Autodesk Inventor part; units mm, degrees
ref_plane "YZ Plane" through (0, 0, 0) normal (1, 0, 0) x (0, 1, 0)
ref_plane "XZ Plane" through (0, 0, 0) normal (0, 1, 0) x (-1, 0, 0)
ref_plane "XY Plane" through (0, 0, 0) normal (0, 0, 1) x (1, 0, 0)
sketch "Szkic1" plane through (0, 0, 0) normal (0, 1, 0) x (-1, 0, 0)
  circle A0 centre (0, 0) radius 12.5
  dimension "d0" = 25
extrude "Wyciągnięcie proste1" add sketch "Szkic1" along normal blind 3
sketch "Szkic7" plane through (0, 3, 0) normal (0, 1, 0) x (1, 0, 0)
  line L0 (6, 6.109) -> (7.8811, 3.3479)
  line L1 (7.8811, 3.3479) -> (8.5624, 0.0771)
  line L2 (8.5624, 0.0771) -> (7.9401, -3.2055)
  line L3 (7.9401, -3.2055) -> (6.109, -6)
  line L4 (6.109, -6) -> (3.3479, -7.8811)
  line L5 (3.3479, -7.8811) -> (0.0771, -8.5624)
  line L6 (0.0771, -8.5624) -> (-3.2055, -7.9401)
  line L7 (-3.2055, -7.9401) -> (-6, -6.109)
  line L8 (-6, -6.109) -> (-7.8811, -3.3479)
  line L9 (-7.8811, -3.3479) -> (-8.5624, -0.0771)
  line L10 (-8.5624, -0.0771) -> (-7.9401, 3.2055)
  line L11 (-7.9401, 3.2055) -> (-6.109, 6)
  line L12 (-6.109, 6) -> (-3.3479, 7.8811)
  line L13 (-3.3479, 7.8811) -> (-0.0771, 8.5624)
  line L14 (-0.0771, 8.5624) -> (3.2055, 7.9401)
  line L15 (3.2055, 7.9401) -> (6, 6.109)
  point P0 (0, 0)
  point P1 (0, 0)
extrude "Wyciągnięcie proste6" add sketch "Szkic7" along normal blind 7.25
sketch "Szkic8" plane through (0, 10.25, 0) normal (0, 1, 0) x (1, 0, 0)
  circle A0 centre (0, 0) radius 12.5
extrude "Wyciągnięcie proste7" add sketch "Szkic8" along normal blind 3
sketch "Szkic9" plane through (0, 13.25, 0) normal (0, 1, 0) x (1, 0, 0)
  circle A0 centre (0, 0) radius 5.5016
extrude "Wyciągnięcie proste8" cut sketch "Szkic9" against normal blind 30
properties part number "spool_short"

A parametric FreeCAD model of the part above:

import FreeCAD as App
import Part
import Sketcher

V = App.Vector

doc = App.newDocument("Part")
body = doc.addObject("PartDesign::Body", "Body")

# Sketch on XZ plane
sketch1 = body.newObject("Sketcher::SketchObject", "Sketch")
sketch1.AttachmentSupport = (doc.getObject("XZ_Plane"), [""])
sketch1.MapMode = "FlatFace"
sketch1.addGeometry(Part.Circle(V(0, 0, 0), V(0, 0, 1), 12.5), False)
sketch1.addConstraint(Sketcher.Constraint("Coincident", 0, 3, -1, 1))
sketch1.addConstraint(Sketcher.Constraint("Diameter", 0, 25.0))
pad1 = body.newObject("PartDesign::Pad", "Pad")
pad1.Profile = sketch1
pad1.Length = 3
pad1.Reversed = True

# Sketch on XZ plane
sketch2 = body.newObject("Sketcher::SketchObject", "Sketch001")
sketch2.AttachmentSupport = (doc.getObject("XZ_Plane"), [""])
sketch2.MapMode = "FlatFace"
sketch2.AttachmentOffset = App.Placement(V(0, 0, -3), App.Rotation())
sketch2.addGeometry(Part.LineSegment(V(7.8811, -3.3479, 0), V(6, -6.109, 0)), False)
sketch2.addGeometry(Part.LineSegment(V(6, -6.109, 0), V(3.2055, -7.9401, 0)), False)
sketch2.addGeometry(Part.LineSegment(V(3.2055, -7.9401, 0), V(-0.0771, -8.5624, 0)), False)
sketch2.addGeometry(Part.LineSegment(V(-0.0771, -8.5624, 0), V(-3.3479, -7.8811, 0)), False)
sketch2.addGeometry(Part.LineSegment(V(-3.3479, -7.8811, 0), V(-6.109, -6, 0)), False)
sketch2.addGeometry(Part.LineSegment(V(-6.109, -6, 0), V(-7.9401, -3.2055, 0)), False)
sketch2.addGeometry(Part.LineSegment(V(-7.9401, -3.2055, 0), V(-8.5624, 0.0771, 0)), False)
sketch2.addGeometry(Part.LineSegment(V(-8.5624, 0.0771, 0), V(-7.8811, 3.3479, 0)), False)
sketch2.addGeometry(Part.LineSegment(V(-7.8811, 3.3479, 0), V(-6, 6.109, 0)), False)
sketch2.addGeometry(Part.LineSegment(V(-6, 6.109, 0), V(-3.2055, 7.9401, 0)), False)
sketch2.addGeometry(Part.LineSegment(V(-3.2055, 7.9401, 0), V(0.0771, 8.5624, 0)), False)
sketch2.addGeometry(Part.LineSegment(V(0.0771, 8.5624, 0), V(3.3479, 7.8811, 0)), False)
sketch2.addGeometry(Part.LineSegment(V(3.3479, 7.8811, 0), V(6.109, 6, 0)), False)
sketch2.addGeometry(Part.LineSegment(V(6.109, 6, 0), V(7.9401, 3.2055, 0)), False)
sketch2.addGeometry(Part.LineSegment(V(7.9401, 3.2055, 0), V(8.5624, -0.0771, 0)), False)
sketch2.addGeometry(Part.LineSegment(V(8.5624, -0.0771, 0), V(7.8811, -3.3479, 0)), False)
sketch2.addConstraint(Sketcher.Constraint("Coincident", 0, 2, 1, 1))
sketch2.addConstraint(Sketcher.Constraint("Coincident", 1, 2, 2, 1))
sketch2.addConstraint(Sketcher.Constraint("Coincident", 2, 2, 3, 1))
sketch2.addConstraint(Sketcher.Constraint("Coincident", 3, 2, 4, 1))
sketch2.addConstraint(Sketcher.Constraint("Coincident", 4, 2, 5, 1))
sketch2.addConstraint(Sketcher.Constraint("Coincident", 5, 2, 6, 1))
sketch2.addConstraint(Sketcher.Constraint("Coincident", 6, 2, 7, 1))
sketch2.addConstraint(Sketcher.Constraint("Coincident", 7, 2, 8, 1))
sketch2.addConstraint(Sketcher.Constraint("Coincident", 8, 2, 9, 1))
sketch2.addConstraint(Sketcher.Constraint("Coincident", 9, 2, 10, 1))
sketch2.addConstraint(Sketcher.Constraint("Coincident", 10, 2, 11, 1))
sketch2.addConstraint(Sketcher.Constraint("Coincident", 11, 2, 12, 1))
sketch2.addConstraint(Sketcher.Constraint("Coincident", 12, 2, 13, 1))
sketch2.addConstraint(Sketcher.Constraint("Coincident", 13, 2, 14, 1))
sketch2.addConstraint(Sketcher.Constraint("Coincident", 14, 2, 15, 1))
sketch2.addConstraint(Sketcher.Constraint("Coincident", 15, 2, 0, 1))
sketch2.addConstraint(Sketcher.Constraint("Symmetric", 0, 2, 8, 2, -1, 1))
sketch2.addConstraint(Sketcher.Constraint("Symmetric", 1, 2, 9, 2, -1, 1))
sketch2.addConstraint(Sketcher.Constraint("Symmetric", 2, 2, 10, 2, -1, 1))
sketch2.addConstraint(Sketcher.Constraint("Symmetric", 3, 2, 11, 2, -1, 1))
sketch2.addConstraint(Sketcher.Constraint("Symmetric", 4, 2, 12, 2, -1, 1))
sketch2.addConstraint(Sketcher.Constraint("Symmetric", 5, 2, 13, 2, -1, 1))
sketch2.addConstraint(Sketcher.Constraint("Symmetric", 6, 2, 14, 2, -1, 1))
sketch2.addConstraint(Sketcher.Constraint("Symmetric", 7, 2, 15, 2, -1, 1))
sketch2.addConstraint(Sketcher.Constraint("Perpendicular", 0, 4))
sketch2.addConstraint(Sketcher.Constraint("Perpendicular", 1, 5))
sketch2.addConstraint(Sketcher.Constraint("Perpendicular", 2, 6))
sketch2.addConstraint(Sketcher.Constraint("Perpendicular", 3, 7))
sketch2.addConstraint(Sketcher.Constraint("Equal", 0, 1))
sketch2.addConstraint(Sketcher.Constraint("Equal", 1, 2))
sketch2.addConstraint(Sketcher.Constraint("Equal", 2, 3))
sketch2.addConstraint(Sketcher.Constraint("Equal", 3, 4))
sketch2.addConstraint(Sketcher.Constraint("Equal", 4, 5))
sketch2.addConstraint(Sketcher.Constraint("Equal", 5, 6))
sketch2.addConstraint(Sketcher.Constraint("Equal", 6, 7))
sketch2.addConstraint(Sketcher.Constraint("DistanceX", -1, 1, 0, 2, 6.0))
sketch2.addConstraint(Sketcher.Constraint("DistanceY", 1, 2, -1, 1, 7.94))
sketch2.addConstraint(Sketcher.Constraint("DistanceY", 3, 2, 8, 2, 13.99))
sketch2.addConstraint(Sketcher.Constraint("Distance", 0, 3.341))
sketch2.addConstraint(Sketcher.Constraint("DistanceY", 0, 2, -1, 1, 6.109))
pad2 = body.newObject("PartDesign::Pad", "Pad001")
pad2.Profile = sketch2
pad2.Length = 7.25
pad2.Reversed = True

# Sketch on XZ plane
sketch3 = body.newObject("Sketcher::SketchObject", "Sketch002")
sketch3.AttachmentSupport = (doc.getObject("XZ_Plane"), [""])
sketch3.MapMode = "FlatFace"
sketch3.AttachmentOffset = App.Placement(V(0, 0, -10.25), App.Rotation())
sketch3.addGeometry(Part.Circle(V(0, 0, 0), V(0, 0, 1), 12.5), False)
sketch3.addConstraint(Sketcher.Constraint("Coincident", 0, 3, -1, 1))
sketch3.addConstraint(Sketcher.Constraint("Diameter", 0, 25.0))
pad3 = body.newObject("PartDesign::Pad", "Pad002")
pad3.Profile = sketch3
pad3.Length = 3
pad3.Reversed = True

# Sketch on XZ plane
sketch4 = body.newObject("Sketcher::SketchObject", "Sketch003")
sketch4.AttachmentSupport = (doc.getObject("XZ_Plane"), [""])
sketch4.MapMode = "FlatFace"
sketch4.AttachmentOffset = App.Placement(V(0, 0, -13.25), App.Rotation())
sketch4.addGeometry(Part.Circle(V(0, 0, 0), V(0, 0, 1), 5.5016), False)
sketch4.addConstraint(Sketcher.Constraint("Coincident", 0, 3, -1, 1))
sketch4.addConstraint(Sketcher.Constraint("Diameter", 0, 11.0032))
pocket1 = body.newObject("PartDesign::Pocket", "Pocket")
pocket1.Profile = sketch4
pocket1.Length = 30
pocket1.Reversed = True

doc.recompute()
